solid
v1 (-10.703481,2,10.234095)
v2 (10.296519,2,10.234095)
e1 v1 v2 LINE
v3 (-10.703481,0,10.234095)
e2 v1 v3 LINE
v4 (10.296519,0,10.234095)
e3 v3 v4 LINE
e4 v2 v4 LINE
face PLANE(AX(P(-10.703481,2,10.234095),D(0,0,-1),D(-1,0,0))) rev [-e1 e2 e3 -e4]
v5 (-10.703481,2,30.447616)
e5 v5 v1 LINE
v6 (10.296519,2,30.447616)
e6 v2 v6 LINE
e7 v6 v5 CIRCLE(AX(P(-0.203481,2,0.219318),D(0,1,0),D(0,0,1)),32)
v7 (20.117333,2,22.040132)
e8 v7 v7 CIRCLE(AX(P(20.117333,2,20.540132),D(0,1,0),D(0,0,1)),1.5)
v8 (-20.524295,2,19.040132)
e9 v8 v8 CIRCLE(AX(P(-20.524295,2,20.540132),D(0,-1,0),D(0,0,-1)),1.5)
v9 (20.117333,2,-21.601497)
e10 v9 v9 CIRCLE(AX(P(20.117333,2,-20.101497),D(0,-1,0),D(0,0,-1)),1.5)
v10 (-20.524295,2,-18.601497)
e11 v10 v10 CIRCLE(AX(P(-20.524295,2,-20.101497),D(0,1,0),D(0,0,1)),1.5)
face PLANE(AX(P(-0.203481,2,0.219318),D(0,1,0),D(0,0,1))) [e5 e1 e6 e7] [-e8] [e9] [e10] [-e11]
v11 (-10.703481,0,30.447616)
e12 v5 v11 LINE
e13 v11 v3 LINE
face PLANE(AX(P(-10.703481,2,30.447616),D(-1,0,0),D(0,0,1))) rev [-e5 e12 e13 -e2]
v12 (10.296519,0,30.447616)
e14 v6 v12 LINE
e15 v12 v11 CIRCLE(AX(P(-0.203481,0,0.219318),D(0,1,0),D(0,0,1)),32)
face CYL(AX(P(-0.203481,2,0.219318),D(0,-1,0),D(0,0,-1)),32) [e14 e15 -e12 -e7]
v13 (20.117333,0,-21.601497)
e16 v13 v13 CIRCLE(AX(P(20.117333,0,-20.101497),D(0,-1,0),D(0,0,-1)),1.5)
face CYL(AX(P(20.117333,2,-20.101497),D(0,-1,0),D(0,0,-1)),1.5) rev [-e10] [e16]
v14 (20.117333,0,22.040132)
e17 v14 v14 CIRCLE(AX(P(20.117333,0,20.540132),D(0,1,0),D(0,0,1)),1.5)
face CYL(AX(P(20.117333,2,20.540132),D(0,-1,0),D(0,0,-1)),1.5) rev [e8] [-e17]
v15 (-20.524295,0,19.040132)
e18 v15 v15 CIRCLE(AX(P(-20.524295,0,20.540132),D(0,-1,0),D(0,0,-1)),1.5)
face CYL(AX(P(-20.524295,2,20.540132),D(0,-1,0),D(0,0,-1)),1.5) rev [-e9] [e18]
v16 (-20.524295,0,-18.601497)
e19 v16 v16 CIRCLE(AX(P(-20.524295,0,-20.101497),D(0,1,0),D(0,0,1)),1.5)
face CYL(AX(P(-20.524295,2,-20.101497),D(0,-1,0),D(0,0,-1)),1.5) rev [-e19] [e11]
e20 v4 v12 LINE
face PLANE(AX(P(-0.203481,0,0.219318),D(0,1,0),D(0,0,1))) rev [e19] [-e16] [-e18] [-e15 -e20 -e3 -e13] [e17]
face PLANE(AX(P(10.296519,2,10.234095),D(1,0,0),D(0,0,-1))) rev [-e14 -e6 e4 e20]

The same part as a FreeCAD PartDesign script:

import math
import FreeCAD as App
import Part
import Sketcher

doc = App.newDocument("Part")
params = doc.addObject("Spreadsheet::Sheet", "Params")
for row, (alias, value) in enumerate([
    ("sketch1_diameter", "3 mm"),
    ("sketch1_radius", "32 mm"),
    ("sketch1_width", "21 mm"),
    ("pad1_length", "2 mm"),
], start=1):
    params.set(f"A{row}", alias)
    params.set(f"B{row}", "=" + value)
    params.setAlias(f"B{row}", alias)

body = doc.addObject("PartDesign::Body", "Body")

# Sketch on XZ plane
sketch1 = body.newObject("Sketcher::SketchObject", "Sketch")
sketch1.AttachmentSupport = (doc.getObject("XZ_Plane"), [""])
sketch1.MapMode = "FlatFace"
sketch1.addGeometry([
    Part.LineSegment(App.Vector(10.3, 10.2, 0), App.Vector(10.3, 30.4, 0)),  # 0
    Part.ArcOfCircle(Part.Circle(App.Vector(-0.2, 0.2, 0), App.Vector(0, 0, 1), 32), math.radians(109), math.radians(431)),  # 1
    Part.LineSegment(App.Vector(-10.7, 30.4, 0), App.Vector(-10.7, 10.2, 0)),  # 2
    Part.LineSegment(App.Vector(-10.7, 10.2, 0), App.Vector(10.3, 10.2, 0)),  # 3
    Part.Circle(App.Vector(-20.5, 20.5, 0), App.Vector(0, 0, 1), 1.5),  # 4
    Part.Circle(App.Vector(20.1, 20.5, 0), App.Vector(0, 0, 1), 1.5),  # 5
    Part.Circle(App.Vector(-20.5, -20.1, 0), App.Vector(0, 0, 1), 1.5),  # 6
    Part.Circle(App.Vector(20.1, -20.1, 0), App.Vector(0, 0, 1), 1.5),  # 7
], False)
sketch1.addConstraint([
    Sketcher.Constraint("Coincident", 0, 2, 1, 2),
    Sketcher.Constraint("Coincident", 1, 1, 2, 1),
    Sketcher.Constraint("Coincident", 2, 2, 3, 1),
    Sketcher.Constraint("Coincident", 3, 2, 0, 1),
    Sketcher.Constraint("Vertical", 0),
    Sketcher.Constraint("Vertical", 2),
    Sketcher.Constraint("Horizontal", 3),
    Sketcher.Constraint("Equal", 4, 5),
    Sketcher.Constraint("Equal", 5, 6),
    Sketcher.Constraint("Equal", 6, 7),
    Sketcher.Constraint("Horizontal", 4, 3, 5, 3),
    Sketcher.Constraint("Horizontal", 6, 3, 7, 3),
    Sketcher.Constraint("Horizontal", 0, 2, 1, 1),
    Sketcher.Constraint("Vertical", 4, 3, 6, 3),
    Sketcher.Constraint("Vertical", 5, 3, 7, 3),
    Sketcher.Constraint("Diameter", 4, 3.0),
    Sketcher.Constraint("Radius", 1, 32.0),
    Sketcher.Constraint("DistanceX", 3, 1, 3, 2, 21.0),
    Sketcher.Constraint("DistanceY", 0, 1, 0, 2, 20.21352),
    Sketcher.Constraint("DistanceX", 1, 3, -1, 1, 0.203481),
    Sketcher.Constraint("DistanceY", -1, 1, 4, 3, 20.540132),
    Sketcher.Constraint("DistanceX", 4, 3, 5, 3, 40.641628),
    Sketcher.Constraint("DistanceY", 6, 3, 4, 3, 40.641628),
    Sketcher.Constraint("DistanceY", 6, 3, 2, 2, 30.335592),
    Sketcher.Constraint("DistanceX", 4, 3, -1, 1, 20.524295),
])
sketch1.setExpression("Constraints[15]", "Params.sketch1_diameter")
sketch1.setExpression("Constraints[16]", "Params.sketch1_radius")
sketch1.setExpression("Constraints[17]", "Params.sketch1_width")
pad1 = body.newObject("PartDesign::Pad", "Pad")
pad1.Profile = sketch1
pad1.setExpression("Length", "Params.pad1_length")
pad1.Reversed = True

doc.recompute()
